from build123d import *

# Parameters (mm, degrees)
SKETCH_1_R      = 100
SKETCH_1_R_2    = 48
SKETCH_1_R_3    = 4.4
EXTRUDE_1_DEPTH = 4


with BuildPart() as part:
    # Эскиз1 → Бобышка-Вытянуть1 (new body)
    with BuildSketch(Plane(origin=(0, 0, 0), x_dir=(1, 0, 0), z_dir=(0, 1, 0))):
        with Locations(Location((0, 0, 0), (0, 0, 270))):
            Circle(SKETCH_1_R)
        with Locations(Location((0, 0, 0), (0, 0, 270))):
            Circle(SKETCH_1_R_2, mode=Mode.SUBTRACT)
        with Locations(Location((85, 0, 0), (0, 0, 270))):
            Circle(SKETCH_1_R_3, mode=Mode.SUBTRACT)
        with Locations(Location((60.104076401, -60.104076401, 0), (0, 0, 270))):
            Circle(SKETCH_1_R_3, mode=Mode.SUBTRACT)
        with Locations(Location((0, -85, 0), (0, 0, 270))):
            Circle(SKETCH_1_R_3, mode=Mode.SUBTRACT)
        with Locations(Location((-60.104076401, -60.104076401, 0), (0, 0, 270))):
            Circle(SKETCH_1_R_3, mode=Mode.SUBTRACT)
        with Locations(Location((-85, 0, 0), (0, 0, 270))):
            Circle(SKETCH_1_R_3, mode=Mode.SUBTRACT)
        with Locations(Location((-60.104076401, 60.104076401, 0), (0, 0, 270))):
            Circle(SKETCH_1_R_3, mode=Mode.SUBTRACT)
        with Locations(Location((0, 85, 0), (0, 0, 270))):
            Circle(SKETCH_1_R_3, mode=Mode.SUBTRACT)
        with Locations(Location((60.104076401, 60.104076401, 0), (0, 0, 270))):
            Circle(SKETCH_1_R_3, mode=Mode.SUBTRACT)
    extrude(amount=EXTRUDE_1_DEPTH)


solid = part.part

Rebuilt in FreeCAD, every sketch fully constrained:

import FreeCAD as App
import Part
import Sketcher

doc = App.newDocument("Part")
body = doc.addObject("PartDesign::Body", "Body")

# Sketch on XZ plane
sketch1 = doc.addObject("Sketcher::SketchObject", "Sketch")
body.addObject(sketch1)
sketch1.AttachmentSupport = (doc.XZ_Plane, [""])
sketch1.MapMode = "FlatFace"
sketch1.addGeometry(Part.Circle(App.Vector(0, 0, 0), App.Vector(0, 0, 1), 100), False)
sketch1.addGeometry(Part.Circle(App.Vector(-60.1, -60.1, 0), App.Vector(0, 0, 1), 4.4), False)
sketch1.addGeometry(Part.Circle(App.Vector(0, -85, 0), App.Vector(0, 0, 1), 4.4), False)
sketch1.addGeometry(Part.Circle(App.Vector(-85, 0, 0), App.Vector(0, 0, 1), 4.4), False)
sketch1.addGeometry(Part.Circle(App.Vector(-60.1, 60.1, 0), App.Vector(0, 0, 1), 4.4), False)
sketch1.addGeometry(Part.Circle(App.Vector(60.1, -60.1, 0), App.Vector(0, 0, 1), 4.4), False)
sketch1.addGeometry(Part.Circle(App.Vector(85, 0, 0), App.Vector(0, 0, 1), 4.4), False)
sketch1.addGeometry(Part.Circle(App.Vector(0, 0, 0), App.Vector(0, 0, 1), 48), False)
sketch1.addGeometry(Part.Circle(App.Vector(0, 85, 0), App.Vector(0, 0, 1), 4.4), False)
sketch1.addGeometry(Part.Circle(App.Vector(60.1, 60.1, 0), App.Vector(0, 0, 1), 4.4), False)
sketch1.addConstraint(Sketcher.Constraint("Coincident", 0, 3, -1, 1))
sketch1.addConstraint(Sketcher.Constraint("Coincident", 7, 3, -1, 1))
sketch1.addConstraint(Sketcher.Constraint("Equal", 1, 2))
sketch1.addConstraint(Sketcher.Constraint("Equal", 2, 3))
sketch1.addConstraint(Sketcher.Constraint("Equal", 3, 4))
sketch1.addConstraint(Sketcher.Constraint("Equal", 4, 5))
sketch1.addConstraint(Sketcher.Constraint("Equal", 5, 6))
sketch1.addConstraint(Sketcher.Constraint("Equal", 6, 8))
sketch1.addConstraint(Sketcher.Constraint("Equal", 8, 9))
sketch1.addConstraint(Sketcher.Constraint("Symmetric", 4, 3, 5, 3, -1, 1))
sketch1.addConstraint(Sketcher.Constraint("Symmetric", 3, 3, 6, 3, -1, 1))
sketch1.addConstraint(Sketcher.Constraint("Symmetric", 2, 3, 8, 3, -1, 1))
sketch1.addConstraint(Sketcher.Constraint("Symmetric", 1, 3, 9, 3, -1, 1))
sketch1.addConstraint(Sketcher.Constraint("Symmetric", 1, 3, 5, 3, -2))
sketch1.addConstraint(Sketcher.Constraint("PointOnObject", 2, 3, -2))
sketch1.addConstraint(Sketcher.Constraint("PointOnObject", 3, 3, -1))
sketch1.addConstraint(Sketcher.Constraint("Diameter", 0, 200.0))
sketch1.addConstraint(Sketcher.Constraint("Diameter", 7, 96.0))
sketch1.addConstraint(Sketcher.Constraint("Diameter", 1, 8.8))
sketch1.addConstraint(Sketcher.Constraint("DistanceY", 2, 3, -1, 1, 85.0))
sketch1.addConstraint(Sketcher.Constraint("DistanceX", 3, 3, -1, 1, 85.0))
sketch1.addConstraint(Sketcher.Constraint("DistanceX", 1, 3, -1, 1, 60.104076))
sketch1.addConstraint(Sketcher.Constraint("DistanceY", 1, 3, -1, 1, 60.104076))
pad1 = doc.addObject("PartDesign::Pad", "Pad")
body.addObject(pad1)
pad1.Profile = sketch1
pad1.Length = 4
pad1.Reversed = True

doc.recompute()
